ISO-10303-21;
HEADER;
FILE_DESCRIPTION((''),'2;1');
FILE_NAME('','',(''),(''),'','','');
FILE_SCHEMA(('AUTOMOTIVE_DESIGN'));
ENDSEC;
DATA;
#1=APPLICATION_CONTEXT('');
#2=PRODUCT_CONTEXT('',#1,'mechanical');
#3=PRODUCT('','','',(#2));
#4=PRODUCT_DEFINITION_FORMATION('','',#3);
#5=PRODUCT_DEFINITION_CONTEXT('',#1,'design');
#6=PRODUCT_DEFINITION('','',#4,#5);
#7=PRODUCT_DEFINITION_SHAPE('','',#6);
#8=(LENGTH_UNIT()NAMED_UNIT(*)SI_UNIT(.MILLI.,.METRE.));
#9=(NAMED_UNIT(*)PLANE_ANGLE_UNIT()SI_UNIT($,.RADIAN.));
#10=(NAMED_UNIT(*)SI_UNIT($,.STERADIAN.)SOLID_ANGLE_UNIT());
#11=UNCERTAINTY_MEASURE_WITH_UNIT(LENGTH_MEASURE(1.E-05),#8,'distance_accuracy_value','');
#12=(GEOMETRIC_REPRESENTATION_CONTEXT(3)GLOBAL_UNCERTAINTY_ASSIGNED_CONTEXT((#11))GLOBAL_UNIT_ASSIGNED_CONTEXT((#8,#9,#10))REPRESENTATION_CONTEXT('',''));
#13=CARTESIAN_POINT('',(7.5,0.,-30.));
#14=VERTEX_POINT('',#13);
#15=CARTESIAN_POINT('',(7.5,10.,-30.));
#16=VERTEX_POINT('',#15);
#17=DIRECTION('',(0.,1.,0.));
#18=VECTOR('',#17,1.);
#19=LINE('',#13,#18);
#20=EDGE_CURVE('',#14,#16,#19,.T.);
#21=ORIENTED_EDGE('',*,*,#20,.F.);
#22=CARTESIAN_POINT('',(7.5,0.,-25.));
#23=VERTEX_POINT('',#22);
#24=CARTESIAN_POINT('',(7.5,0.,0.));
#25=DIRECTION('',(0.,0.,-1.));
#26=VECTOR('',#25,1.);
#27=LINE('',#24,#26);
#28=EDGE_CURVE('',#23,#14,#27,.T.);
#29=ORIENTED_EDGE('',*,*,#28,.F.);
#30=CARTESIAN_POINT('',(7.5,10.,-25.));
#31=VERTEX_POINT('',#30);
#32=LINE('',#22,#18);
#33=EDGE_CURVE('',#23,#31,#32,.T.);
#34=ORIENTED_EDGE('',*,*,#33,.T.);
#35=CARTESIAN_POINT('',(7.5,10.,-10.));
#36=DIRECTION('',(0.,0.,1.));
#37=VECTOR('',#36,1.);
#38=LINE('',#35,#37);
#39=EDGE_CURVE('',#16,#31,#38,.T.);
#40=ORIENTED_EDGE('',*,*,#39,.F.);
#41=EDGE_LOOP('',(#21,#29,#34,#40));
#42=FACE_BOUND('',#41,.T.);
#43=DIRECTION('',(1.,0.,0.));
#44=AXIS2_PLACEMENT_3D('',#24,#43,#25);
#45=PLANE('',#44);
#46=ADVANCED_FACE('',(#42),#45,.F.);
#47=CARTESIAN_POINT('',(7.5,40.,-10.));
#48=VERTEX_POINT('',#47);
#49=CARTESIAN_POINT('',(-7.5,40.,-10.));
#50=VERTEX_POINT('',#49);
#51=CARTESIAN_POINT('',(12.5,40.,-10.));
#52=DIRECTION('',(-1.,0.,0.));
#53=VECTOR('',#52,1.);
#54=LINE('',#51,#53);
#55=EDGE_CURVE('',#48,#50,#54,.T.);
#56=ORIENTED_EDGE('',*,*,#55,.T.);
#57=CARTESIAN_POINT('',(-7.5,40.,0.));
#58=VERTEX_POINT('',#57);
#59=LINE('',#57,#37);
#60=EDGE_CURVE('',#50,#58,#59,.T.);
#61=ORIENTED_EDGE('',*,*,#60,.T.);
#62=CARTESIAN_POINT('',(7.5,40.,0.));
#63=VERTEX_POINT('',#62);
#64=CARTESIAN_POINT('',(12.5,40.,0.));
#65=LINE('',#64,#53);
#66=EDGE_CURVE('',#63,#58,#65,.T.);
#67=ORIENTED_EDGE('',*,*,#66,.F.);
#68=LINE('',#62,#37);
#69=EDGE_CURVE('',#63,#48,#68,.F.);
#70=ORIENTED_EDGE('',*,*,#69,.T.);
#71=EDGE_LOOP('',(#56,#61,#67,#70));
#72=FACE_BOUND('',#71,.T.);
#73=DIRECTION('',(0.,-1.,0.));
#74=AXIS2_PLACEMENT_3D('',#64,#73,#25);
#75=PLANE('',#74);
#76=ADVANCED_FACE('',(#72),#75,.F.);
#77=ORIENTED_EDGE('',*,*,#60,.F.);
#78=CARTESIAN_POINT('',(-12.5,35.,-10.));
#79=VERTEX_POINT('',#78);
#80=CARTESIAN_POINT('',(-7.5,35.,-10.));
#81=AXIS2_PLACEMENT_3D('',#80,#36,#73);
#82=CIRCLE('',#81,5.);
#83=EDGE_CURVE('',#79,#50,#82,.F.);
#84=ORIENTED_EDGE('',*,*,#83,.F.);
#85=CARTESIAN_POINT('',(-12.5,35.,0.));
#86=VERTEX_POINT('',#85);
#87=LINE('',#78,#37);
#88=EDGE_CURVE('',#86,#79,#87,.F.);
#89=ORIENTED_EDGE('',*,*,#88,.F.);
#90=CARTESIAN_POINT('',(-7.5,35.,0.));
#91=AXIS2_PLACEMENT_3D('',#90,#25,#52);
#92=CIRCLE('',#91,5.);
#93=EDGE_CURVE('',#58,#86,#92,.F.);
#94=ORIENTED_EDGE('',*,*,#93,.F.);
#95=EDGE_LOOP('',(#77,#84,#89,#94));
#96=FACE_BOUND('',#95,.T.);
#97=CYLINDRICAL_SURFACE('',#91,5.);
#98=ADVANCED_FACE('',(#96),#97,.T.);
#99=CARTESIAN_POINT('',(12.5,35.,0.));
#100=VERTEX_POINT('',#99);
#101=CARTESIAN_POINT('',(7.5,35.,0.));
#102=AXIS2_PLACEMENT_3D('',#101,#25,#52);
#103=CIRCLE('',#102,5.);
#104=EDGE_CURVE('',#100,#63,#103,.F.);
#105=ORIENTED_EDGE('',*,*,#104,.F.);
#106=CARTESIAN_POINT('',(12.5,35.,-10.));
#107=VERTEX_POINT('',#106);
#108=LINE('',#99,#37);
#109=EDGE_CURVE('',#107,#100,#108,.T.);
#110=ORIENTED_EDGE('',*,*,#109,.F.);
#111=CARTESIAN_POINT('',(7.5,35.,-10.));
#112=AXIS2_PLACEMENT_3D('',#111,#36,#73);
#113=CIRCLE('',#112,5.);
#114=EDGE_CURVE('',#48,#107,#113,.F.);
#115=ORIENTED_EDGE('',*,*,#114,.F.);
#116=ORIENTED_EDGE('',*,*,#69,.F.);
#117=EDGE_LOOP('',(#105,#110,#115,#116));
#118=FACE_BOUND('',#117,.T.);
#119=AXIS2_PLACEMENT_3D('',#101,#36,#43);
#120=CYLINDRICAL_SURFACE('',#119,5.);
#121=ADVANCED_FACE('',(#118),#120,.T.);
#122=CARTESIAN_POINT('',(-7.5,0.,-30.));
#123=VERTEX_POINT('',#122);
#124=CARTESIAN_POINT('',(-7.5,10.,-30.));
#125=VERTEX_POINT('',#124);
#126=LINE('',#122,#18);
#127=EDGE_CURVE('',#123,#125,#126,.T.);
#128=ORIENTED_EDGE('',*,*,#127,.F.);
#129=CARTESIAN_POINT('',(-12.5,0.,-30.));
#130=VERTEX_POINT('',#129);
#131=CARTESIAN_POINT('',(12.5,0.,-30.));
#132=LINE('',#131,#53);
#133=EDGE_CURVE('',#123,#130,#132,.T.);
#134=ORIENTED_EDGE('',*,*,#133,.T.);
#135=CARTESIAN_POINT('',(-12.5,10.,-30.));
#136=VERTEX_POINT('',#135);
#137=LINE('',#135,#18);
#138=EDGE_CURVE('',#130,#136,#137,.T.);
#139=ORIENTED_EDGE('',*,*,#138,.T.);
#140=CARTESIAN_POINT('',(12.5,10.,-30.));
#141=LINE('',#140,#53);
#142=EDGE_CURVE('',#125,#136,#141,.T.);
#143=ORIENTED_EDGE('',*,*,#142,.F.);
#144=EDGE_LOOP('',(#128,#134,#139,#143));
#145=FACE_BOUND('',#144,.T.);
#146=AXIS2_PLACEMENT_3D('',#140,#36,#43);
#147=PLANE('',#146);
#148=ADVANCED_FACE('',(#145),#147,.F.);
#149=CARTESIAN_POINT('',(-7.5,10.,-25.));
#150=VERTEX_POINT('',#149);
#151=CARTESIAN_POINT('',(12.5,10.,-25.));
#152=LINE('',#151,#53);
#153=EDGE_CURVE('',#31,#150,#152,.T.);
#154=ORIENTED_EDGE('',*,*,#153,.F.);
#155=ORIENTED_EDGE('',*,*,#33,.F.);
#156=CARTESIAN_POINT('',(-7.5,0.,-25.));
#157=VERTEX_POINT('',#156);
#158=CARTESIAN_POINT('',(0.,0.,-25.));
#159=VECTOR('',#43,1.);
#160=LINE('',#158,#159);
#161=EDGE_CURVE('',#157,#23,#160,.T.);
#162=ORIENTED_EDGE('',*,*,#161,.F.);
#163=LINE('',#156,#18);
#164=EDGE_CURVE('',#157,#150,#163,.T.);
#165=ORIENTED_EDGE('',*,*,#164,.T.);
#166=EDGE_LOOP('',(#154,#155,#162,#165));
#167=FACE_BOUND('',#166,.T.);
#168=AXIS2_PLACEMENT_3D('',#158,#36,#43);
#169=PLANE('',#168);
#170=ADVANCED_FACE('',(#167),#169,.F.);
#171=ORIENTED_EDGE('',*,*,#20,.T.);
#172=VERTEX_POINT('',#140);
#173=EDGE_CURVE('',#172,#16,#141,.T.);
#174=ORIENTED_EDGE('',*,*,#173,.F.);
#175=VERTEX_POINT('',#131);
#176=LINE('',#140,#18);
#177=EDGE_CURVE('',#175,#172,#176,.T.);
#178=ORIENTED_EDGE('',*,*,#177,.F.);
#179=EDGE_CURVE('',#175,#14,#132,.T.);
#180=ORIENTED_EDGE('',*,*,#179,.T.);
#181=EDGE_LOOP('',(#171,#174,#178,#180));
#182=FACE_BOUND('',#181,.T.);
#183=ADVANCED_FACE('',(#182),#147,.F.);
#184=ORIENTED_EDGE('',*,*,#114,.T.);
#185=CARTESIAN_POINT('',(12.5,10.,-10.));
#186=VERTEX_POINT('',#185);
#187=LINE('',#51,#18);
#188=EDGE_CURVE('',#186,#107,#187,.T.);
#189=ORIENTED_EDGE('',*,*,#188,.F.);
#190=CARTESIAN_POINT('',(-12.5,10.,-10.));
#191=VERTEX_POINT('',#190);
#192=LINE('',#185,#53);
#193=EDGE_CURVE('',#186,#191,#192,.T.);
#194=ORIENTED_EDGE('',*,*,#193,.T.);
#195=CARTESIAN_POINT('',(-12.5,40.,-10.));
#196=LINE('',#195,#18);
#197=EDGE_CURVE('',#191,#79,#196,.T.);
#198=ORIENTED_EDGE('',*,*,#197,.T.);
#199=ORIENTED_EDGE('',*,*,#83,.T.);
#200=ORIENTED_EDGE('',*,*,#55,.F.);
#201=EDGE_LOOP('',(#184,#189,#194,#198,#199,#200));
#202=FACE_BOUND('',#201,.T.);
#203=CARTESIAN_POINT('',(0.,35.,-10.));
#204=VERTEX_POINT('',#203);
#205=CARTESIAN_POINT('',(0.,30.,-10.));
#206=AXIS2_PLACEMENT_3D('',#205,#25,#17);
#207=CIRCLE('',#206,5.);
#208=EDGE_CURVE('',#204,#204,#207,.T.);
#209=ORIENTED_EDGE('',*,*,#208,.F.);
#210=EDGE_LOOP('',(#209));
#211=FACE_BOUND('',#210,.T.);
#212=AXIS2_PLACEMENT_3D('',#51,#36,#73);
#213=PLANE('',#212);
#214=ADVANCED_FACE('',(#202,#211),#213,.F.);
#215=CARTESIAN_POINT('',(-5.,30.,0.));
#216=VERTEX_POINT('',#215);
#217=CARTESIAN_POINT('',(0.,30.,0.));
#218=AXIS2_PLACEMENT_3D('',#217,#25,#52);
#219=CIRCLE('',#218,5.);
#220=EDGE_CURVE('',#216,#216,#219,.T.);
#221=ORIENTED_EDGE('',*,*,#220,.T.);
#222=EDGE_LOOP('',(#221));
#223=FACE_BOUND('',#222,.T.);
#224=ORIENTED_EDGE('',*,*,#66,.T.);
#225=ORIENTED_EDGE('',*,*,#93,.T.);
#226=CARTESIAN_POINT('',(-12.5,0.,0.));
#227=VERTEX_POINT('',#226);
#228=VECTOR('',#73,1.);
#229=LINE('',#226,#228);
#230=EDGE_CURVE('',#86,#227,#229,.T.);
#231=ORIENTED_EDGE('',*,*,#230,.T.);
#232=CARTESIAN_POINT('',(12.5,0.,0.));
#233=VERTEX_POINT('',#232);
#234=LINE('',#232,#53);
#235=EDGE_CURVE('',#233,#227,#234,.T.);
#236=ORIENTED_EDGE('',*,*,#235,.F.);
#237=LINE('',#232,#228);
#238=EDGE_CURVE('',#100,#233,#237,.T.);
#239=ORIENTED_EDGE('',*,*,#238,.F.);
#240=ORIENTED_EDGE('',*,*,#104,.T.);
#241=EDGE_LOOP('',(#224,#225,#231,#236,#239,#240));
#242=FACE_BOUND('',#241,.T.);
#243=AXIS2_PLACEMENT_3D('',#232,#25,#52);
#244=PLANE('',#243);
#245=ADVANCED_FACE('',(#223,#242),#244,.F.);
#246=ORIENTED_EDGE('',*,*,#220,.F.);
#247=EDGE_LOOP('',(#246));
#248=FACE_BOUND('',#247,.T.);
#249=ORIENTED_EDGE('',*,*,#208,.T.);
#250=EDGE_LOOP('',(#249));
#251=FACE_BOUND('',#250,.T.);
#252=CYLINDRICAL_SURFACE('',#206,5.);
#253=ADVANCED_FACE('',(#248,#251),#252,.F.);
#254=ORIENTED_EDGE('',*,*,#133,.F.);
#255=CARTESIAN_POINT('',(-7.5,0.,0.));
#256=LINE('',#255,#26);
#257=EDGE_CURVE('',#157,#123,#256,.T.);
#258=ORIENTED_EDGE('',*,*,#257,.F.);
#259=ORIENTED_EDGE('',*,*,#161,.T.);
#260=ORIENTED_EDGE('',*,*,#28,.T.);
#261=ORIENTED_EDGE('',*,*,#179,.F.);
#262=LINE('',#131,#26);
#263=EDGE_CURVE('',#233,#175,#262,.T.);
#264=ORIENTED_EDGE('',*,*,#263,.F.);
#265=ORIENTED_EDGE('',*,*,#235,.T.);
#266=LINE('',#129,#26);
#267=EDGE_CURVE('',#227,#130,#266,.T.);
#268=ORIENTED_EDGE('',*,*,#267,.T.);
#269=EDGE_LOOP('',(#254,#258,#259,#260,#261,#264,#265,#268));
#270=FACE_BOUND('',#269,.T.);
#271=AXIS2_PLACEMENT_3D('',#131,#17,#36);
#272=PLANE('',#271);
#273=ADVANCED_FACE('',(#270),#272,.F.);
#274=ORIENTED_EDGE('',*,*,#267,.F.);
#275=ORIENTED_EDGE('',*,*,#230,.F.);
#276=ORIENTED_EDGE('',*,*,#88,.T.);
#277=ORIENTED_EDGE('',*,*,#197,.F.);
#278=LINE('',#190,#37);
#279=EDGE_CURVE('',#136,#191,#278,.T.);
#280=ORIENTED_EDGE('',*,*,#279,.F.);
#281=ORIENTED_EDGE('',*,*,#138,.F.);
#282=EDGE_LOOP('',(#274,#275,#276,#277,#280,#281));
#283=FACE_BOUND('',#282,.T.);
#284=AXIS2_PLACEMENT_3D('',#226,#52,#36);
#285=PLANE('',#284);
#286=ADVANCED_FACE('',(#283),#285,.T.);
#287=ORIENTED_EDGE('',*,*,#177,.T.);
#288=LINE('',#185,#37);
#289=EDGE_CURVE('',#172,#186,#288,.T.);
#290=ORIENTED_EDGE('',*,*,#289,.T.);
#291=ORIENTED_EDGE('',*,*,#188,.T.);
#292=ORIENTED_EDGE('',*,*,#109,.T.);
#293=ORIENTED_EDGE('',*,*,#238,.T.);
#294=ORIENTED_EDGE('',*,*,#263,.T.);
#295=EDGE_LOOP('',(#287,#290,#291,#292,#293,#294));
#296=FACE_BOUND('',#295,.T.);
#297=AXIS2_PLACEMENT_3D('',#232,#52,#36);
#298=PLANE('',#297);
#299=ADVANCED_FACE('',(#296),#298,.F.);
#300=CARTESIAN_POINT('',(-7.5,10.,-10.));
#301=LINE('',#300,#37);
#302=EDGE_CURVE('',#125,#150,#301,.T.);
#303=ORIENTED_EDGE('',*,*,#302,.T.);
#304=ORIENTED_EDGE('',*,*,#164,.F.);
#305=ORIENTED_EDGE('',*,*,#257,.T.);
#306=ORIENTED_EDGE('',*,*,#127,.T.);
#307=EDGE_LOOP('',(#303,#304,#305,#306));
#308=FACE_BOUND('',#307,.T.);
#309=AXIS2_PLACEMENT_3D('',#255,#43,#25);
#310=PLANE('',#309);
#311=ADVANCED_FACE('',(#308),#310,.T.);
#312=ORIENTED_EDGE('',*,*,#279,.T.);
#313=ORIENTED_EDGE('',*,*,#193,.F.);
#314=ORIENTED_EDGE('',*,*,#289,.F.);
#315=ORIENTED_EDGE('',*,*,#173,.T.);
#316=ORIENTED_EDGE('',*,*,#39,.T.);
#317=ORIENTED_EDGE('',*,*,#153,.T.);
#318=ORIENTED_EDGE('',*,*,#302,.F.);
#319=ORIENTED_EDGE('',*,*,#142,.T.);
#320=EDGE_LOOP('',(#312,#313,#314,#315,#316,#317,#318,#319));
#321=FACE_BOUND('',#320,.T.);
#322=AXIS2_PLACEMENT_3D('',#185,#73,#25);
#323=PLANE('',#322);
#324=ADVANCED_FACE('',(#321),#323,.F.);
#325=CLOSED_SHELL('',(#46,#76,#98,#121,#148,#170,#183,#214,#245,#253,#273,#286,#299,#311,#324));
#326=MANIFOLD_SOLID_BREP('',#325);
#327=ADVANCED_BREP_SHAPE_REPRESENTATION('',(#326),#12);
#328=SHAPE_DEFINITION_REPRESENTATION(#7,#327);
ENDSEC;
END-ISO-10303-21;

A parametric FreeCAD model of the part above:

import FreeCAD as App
import Part
import Sketcher

V = App.Vector
Q = App.Units.Quantity


def edges_at(feature, points):
    """Names of the edges that pass closest to the given points."""
    edges = feature.Shape.Edges
    near = lambda p: min(range(len(edges)), key=lambda i: edges[i].distToShape(Part.Vertex(*p))[0])
    return sorted({f"Edge{near(p) + 1}" for p in points})


def add_polygon(sketch, points):
    """Adds a closed chain of lines whose ends are joined by coincident constraints."""
    first, n = sketch.GeometryCount, len(points)
    for a, b in zip(points, points[1:] + points[:1]):
        sketch.addGeometry(Part.LineSegment(App.Vector(*a, 0), App.Vector(*b, 0)), False)
    for i in range(n):
        sketch.addConstraint(Sketcher.Constraint("Coincident", first + i, 2, first + (i + 1) % n, 1))

doc = App.newDocument("Part")
params = doc.addObject("Spreadsheet::Sheet", "Params")
for row, (alias, value) in enumerate([
    ("sketch1_width", "40 mm"),
    ("sketch1_width2", "10 mm"),
    ("pad1_length", "25 mm"),
    ("sketch2_width", "15 mm"),
    ("sketch2_height", "5 mm"),
    ("sketch3_diameter", "10 mm"),
    ("hole_diameter", "10 mm"),
    ("fillet_radius", "5 mm"),
], start=1):
    params.set(f"A{row}", alias)
    params.set(f"B{row}", "=" + value)
    params.setAlias(f"B{row}", alias)

body = doc.addObject("PartDesign::Body", "Body")

# Sketch on YZ plane
sketch1 = body.newObject("Sketcher::SketchObject", "Sketch")
sketch1.AttachmentSupport = (doc.getObject("YZ_Plane"), [""])
sketch1.MapMode = "FlatFace"
add_polygon(sketch1, [(40, 0), (0, 0), (0, -30), (10, -30), (10, -10), (40, -10)])  # lines 0-5
sketch1.addConstraint(Sketcher.Constraint("Horizontal", 0))
sketch1.addConstraint(Sketcher.Constraint("Vertical", 1))
sketch1.addConstraint(Sketcher.Constraint("Horizontal", 2))
sketch1.addConstraint(Sketcher.Constraint("Vertical", 3))
sketch1.addConstraint(Sketcher.Constraint("Horizontal", 4))
sketch1.addConstraint(Sketcher.Constraint("Vertical", 5))
sketch1.addConstraint(Sketcher.Constraint("Coincident", 0, 2, -1, 1))
sketch1.addConstraint(Sketcher.Constraint("Equal", 4, 1))
sketch1.addConstraint(Sketcher.Constraint("Equal", 2, 5))
sketch1.addConstraint(Sketcher.Constraint("DistanceX", 0, 2, 0, 1, Q("40 mm")))
sketch1.addConstraint(Sketcher.Constraint("DistanceX", 2, 1, 2, 2, Q("10 mm")))
sketch1.setExpression("Constraints[15]", "Params.sketch1_width")
sketch1.setExpression("Constraints[16]", "Params.sketch1_width2")
pad1 = body.newObject("PartDesign::Pad", "Pad")
pad1.Profile = sketch1
pad1.setExpression("Length", "Params.pad1_length")
pad1.Midplane = True

# Sketch on XZ plane
sketch2 = body.newObject("Sketcher::SketchObject", "Sketch001")
sketch2.AttachmentSupport = (doc.getObject("XZ_Plane"), [""])
sketch2.MapMode = "FlatFace"
sketch2.AttachmentOffset = App.Placement(V(0, 0, -10), App.Rotation())
add_polygon(sketch2, [(-8, -30), (-8, -25), (8, -25), (8, -30)])  # lines 0-3
sketch2.addConstraint(Sketcher.Constraint("Vertical", 0))
sketch2.addConstraint(Sketcher.Constraint("Horizontal", 1))
sketch2.addConstraint(Sketcher.Constraint("Vertical", 2))
sketch2.addConstraint(Sketcher.Constraint("Horizontal", 3))
sketch2.addConstraint(Sketcher.Constraint("DistanceX", 1, 1, 1, 2, Q("15 mm")))
sketch2.addConstraint(Sketcher.Constraint("DistanceY", 0, 1, 0, 2, Q("5 mm")))
sketch2.addConstraint(Sketcher.Constraint("DistanceY", 0, 2, -1, 1, Q("25 mm")))
sketch2.addConstraint(Sketcher.Constraint("DistanceX", 0, 2, -1, 1, Q("7.5 mm")))
sketch2.setExpression("Constraints[8]", "Params.sketch2_width")
sketch2.setExpression("Constraints[9]", "Params.sketch2_height")
pocket1 = body.newObject("PartDesign::Pocket", "Pocket")
pocket1.Profile = sketch2
pocket1.Type = "ThroughAll"
pocket1.Midplane = True

# Sketch on XY plane
sketch3 = body.newObject("Sketcher::SketchObject", "Sketch002")
sketch3.AttachmentSupport = (doc.getObject("XY_Plane"), [""])
sketch3.MapMode = "FlatFace"
sketch3.AttachmentOffset = App.Placement(V(0, 0, -10), App.Rotation())
sketch3.addGeometry(Part.Circle(V(0, 30, 0), V(0, 0, 1), 5), False)
sketch3.addConstraint(Sketcher.Constraint("PointOnObject", 0, 3, -2))
sketch3.addConstraint(Sketcher.Constraint("Diameter", 0, Q("10 mm")))
sketch3.addConstraint(Sketcher.Constraint("DistanceY", -1, 1, 0, 3, Q("30 mm")))
sketch3.setExpression("Constraints[1]", "Params.sketch3_diameter")
doc.recompute()
hole = body.newObject("PartDesign::Hole", "Hole")
hole.Profile = sketch3
hole.ThreadType = "None"
hole.setExpression("Diameter", "Params.hole_diameter")
hole.DepthType = "ThroughAll"
hole.Reversed = True
doc.recompute()

fillet = body.newObject("PartDesign::Fillet", "Fillet")
fillet.Base = (hole, edges_at(hole, [(12.5, 40, -5), (-12.5, 40, -5)]))
fillet.setExpression("Radius", "Params.fillet_radius")

doc.recompute()
